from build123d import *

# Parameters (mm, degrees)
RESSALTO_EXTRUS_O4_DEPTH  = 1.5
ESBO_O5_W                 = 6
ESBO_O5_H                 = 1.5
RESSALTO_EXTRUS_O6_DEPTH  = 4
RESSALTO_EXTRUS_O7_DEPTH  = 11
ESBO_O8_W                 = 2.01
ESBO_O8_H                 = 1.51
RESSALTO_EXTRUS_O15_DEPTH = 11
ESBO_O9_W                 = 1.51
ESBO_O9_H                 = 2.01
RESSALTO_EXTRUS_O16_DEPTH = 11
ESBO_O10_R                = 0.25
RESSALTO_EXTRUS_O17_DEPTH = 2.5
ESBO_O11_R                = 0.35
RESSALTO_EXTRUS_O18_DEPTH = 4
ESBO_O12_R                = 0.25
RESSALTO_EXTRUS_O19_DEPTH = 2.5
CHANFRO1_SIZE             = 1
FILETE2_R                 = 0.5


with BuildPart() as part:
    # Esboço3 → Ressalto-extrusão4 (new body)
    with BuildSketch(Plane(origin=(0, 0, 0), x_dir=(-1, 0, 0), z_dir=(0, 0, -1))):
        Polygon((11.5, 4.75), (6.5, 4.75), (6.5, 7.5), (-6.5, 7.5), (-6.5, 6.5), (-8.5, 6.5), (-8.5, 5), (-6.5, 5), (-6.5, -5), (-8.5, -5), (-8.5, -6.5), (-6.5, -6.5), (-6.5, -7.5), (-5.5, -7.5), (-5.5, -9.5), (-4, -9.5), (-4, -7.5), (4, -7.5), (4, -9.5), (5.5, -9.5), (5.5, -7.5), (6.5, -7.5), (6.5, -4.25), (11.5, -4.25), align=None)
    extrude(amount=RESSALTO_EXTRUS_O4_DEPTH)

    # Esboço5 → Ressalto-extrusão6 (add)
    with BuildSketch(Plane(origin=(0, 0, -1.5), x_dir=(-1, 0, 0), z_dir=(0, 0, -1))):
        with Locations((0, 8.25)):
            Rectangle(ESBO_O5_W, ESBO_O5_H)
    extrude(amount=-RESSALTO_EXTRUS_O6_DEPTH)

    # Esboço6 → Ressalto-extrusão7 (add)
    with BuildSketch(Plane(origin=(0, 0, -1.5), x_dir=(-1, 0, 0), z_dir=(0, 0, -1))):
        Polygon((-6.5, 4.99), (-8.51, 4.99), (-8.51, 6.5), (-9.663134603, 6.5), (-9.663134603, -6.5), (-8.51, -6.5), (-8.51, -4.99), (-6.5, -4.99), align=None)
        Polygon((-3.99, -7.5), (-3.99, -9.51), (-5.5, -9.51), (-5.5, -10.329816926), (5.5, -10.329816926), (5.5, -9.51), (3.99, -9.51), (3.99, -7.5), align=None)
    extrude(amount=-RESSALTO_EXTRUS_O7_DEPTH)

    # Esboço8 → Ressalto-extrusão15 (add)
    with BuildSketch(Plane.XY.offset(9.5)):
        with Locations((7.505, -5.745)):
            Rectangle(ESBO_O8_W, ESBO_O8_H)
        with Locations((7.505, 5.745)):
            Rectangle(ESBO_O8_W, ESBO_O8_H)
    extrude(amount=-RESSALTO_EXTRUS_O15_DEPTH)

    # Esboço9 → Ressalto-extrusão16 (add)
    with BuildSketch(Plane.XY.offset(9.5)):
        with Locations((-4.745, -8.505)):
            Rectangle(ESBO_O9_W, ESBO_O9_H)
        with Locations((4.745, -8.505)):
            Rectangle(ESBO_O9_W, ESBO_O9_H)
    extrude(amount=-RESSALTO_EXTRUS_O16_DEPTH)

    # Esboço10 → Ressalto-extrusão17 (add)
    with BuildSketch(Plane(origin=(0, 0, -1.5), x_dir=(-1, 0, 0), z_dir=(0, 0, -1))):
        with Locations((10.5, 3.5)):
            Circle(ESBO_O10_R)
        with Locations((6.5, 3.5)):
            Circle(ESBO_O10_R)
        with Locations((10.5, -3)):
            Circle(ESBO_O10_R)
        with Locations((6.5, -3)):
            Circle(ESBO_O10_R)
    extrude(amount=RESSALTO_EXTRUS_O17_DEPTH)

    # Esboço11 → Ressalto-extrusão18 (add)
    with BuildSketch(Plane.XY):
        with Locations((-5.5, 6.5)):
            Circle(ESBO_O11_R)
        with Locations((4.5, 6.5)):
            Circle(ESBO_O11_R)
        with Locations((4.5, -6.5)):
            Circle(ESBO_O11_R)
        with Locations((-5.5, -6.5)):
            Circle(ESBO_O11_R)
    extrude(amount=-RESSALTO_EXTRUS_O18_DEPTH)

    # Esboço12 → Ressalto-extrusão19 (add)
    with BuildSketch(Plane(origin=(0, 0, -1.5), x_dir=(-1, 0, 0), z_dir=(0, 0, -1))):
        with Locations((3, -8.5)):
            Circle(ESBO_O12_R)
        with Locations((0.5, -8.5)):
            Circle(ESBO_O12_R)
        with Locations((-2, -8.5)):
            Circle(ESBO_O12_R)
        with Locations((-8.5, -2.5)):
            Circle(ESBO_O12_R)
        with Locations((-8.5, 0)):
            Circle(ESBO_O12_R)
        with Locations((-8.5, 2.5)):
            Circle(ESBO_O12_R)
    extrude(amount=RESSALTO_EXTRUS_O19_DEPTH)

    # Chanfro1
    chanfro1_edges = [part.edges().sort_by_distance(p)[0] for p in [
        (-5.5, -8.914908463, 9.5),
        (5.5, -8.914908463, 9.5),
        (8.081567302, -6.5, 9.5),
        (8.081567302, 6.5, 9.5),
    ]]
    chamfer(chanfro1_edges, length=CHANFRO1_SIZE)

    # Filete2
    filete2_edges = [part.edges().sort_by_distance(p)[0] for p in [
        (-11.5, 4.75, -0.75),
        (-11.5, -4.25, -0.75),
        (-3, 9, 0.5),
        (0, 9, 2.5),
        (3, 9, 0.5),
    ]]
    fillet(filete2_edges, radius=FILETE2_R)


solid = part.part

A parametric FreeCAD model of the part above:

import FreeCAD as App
import Part
import Sketcher
Q = App.Units.Quantity


def edges_at(feature, points):
    """Names of the edges that pass closest to the given points."""
    edges = feature.Shape.Edges
    near = lambda p: min(range(len(edges)), key=lambda i: edges[i].distToShape(Part.Vertex(*p))[0])
    return sorted({f"Edge{near(p) + 1}" for p in points})

doc = App.newDocument("Part")
body = doc.addObject("PartDesign::Body", "Body")

sketch1 = doc.addObject("Sketcher::SketchObject", "Sketch")
body.addObject(sketch1)
sketch1.AttachmentSupport = (doc.XY_Plane, [""])
sketch1.MapMode = "FlatFace"
sketch1.addGeometry([
    Part.LineSegment(App.Vector(-11.5, 4.8, 0), App.Vector(-6.5, 4.8, 0)),
    Part.LineSegment(App.Vector(-6.5, 4.8, 0), App.Vector(-6.5, 7.5, 0)),
    Part.LineSegment(App.Vector(-6.5, 7.5, 0), App.Vector(6.5, 7.5, 0)),
    Part.LineSegment(App.Vector(6.5, 7.5, 0), App.Vector(6.5, 6.5, 0)),
    Part.LineSegment(App.Vector(6.5, 6.5, 0), App.Vector(8.5, 6.5, 0)),
    Part.LineSegment(App.Vector(8.5, 6.5, 0), App.Vector(8.5, 5, 0)),
    Part.LineSegment(App.Vector(8.5, 5, 0), App.Vector(6.5, 5, 0)),
    Part.LineSegment(App.Vector(6.5, 5, 0), App.Vector(6.5, -5, 0)),
    Part.LineSegment(App.Vector(6.5, -5, 0), App.Vector(8.5, -5, 0)),
    Part.LineSegment(App.Vector(8.5, -5, 0), App.Vector(8.5, -6.5, 0)),
    Part.LineSegment(App.Vector(8.5, -6.5, 0), App.Vector(6.5, -6.5, 0)),
    Part.LineSegment(App.Vector(6.5, -6.5, 0), App.Vector(6.5, -7.5, 0)),
    Part.LineSegment(App.Vector(6.5, -7.5, 0), App.Vector(5.5, -7.5, 0)),
    Part.LineSegment(App.Vector(5.5, -7.5, 0), App.Vector(5.5, -9.5, 0)),
    Part.LineSegment(App.Vector(5.5, -9.5, 0), App.Vector(4, -9.5, 0)),
    Part.LineSegment(App.Vector(4, -9.5, 0), App.Vector(4, -7.5, 0)),
    Part.LineSegment(App.Vector(4, -7.5, 0), App.Vector(-4, -7.5, 0)),
    Part.LineSegment(App.Vector(-4, -7.5, 0), App.Vector(-4, -9.5, 0)),
    Part.LineSegment(App.Vector(-4, -9.5, 0), App.Vector(-5.5, -9.5, 0)),
    Part.LineSegment(App.Vector(-5.5, -9.5, 0), App.Vector(-5.5, -7.5, 0)),
    Part.LineSegment(App.Vector(-5.5, -7.5, 0), App.Vector(-6.5, -7.5, 0)),
    Part.LineSegment(App.Vector(-6.5, -7.5, 0), App.Vector(-6.5, -4.2, 0)),
    Part.LineSegment(App.Vector(-6.5, -4.2, 0), App.Vector(-11.5, -4.2, 0)),
    Part.LineSegment(App.Vector(-11.5, -4.2, 0), App.Vector(-11.5, 4.8, 0)),
], False)
sketch1.addConstraint([
    Sketcher.Constraint("Coincident", 0, 2, 1, 1),
    Sketcher.Constraint("Coincident", 1, 2, 2, 1),
    Sketcher.Constraint("Coincident", 2, 2, 3, 1),
    Sketcher.Constraint("Coincident", 3, 2, 4, 1),
    Sketcher.Constraint("Coincident", 4, 2, 5, 1),
    Sketcher.Constraint("Coincident", 5, 2, 6, 1),
    Sketcher.Constraint("Coincident", 6, 2, 7, 1),
    Sketcher.Constraint("Coincident", 7, 2, 8, 1),
    Sketcher.Constraint("Coincident", 8, 2, 9, 1),
    Sketcher.Constraint("Coincident", 9, 2, 10, 1),
    Sketcher.Constraint("Coincident", 10, 2, 11, 1),
    Sketcher.Constraint("Coincident", 11, 2, 12, 1),
    Sketcher.Constraint("Coincident", 12, 2, 13, 1),
    Sketcher.Constraint("Coincident", 13, 2, 14, 1),
    Sketcher.Constraint("Coincident", 14, 2, 15, 1),
    Sketcher.Constraint("Coincident", 15, 2, 16, 1),
    Sketcher.Constraint("Coincident", 16, 2, 17, 1),
    Sketcher.Constraint("Coincident", 17, 2, 18, 1),
    Sketcher.Constraint("Coincident", 18, 2, 19, 1),
    Sketcher.Constraint("Coincident", 19, 2, 20, 1),
    Sketcher.Constraint("Coincident", 20, 2, 21, 1),
    Sketcher.Constraint("Coincident", 21, 2, 22, 1),
    Sketcher.Constraint("Coincident", 22, 2, 23, 1),
    Sketcher.Constraint("Coincident", 23, 2, 0, 1),
    Sketcher.Constraint("Horizontal", 0),
    Sketcher.Constraint("Vertical", 1),
    Sketcher.Constraint("Horizontal", 2),
    Sketcher.Constraint("Vertical", 3),
    Sketcher.Constraint("Horizontal", 4),
    Sketcher.Constraint("Vertical", 5),
    Sketcher.Constraint("Horizontal", 6),
    Sketcher.Constraint("Vertical", 7),
    Sketcher.Constraint("Horizontal", 8),
    Sketcher.Constraint("Vertical", 9),
    Sketcher.Constraint("Horizontal", 10),
    Sketcher.Constraint("Vertical", 11),
    Sketcher.Constraint("Horizontal", 12),
    Sketcher.Constraint("Vertical", 13),
    Sketcher.Constraint("Horizontal", 14),
    Sketcher.Constraint("Vertical", 15),
    Sketcher.Constraint("Horizontal", 16),
    Sketcher.Constraint("Vertical", 17),
    Sketcher.Constraint("Horizontal", 18),
    Sketcher.Constraint("Vertical", 19),
    Sketcher.Constraint("Horizontal", 20),
    Sketcher.Constraint("Vertical", 21),
    Sketcher.Constraint("Horizontal", 22),
    Sketcher.Constraint("Vertical", 23),
    Sketcher.Constraint("Symmetric", 1, 2, 11, 2, -1, 1),
    Sketcher.Constraint("Symmetric", 2, 2, 20, 2, -1, 1),
    Sketcher.Constraint("Symmetric", 14, 2, 17, 2, -2),
    Sketcher.Constraint("Symmetric", 5, 2, 8, 2, -1),
    Sketcher.Constraint("Symmetric", 3, 2, 10, 2, -1),
    Sketcher.Constraint("Horizontal", 12, 2, 15, 2),
    Sketcher.Constraint("Vertical", 3, 2, 6, 2),
    Sketcher.Constraint("Equal", 14, 18),
    Sketcher.Constraint("Equal", 20, 3),
    Sketcher.Constraint("Equal", 18, 5),
    Sketcher.Constraint("Equal", 10, 13),
    Sketcher.Constraint("DistanceX", 0, 1, 0, 2, Q("5 mm")),
    Sketcher.Constraint("DistanceX", 2, 1, 2, 2, Q("13 mm")),
    Sketcher.Constraint("DistanceX", 4, 1, 4, 2, Q("2 mm")),
    Sketcher.Constraint("DistanceX", 12, 2, 12, 1, Q("1 mm")),
    Sketcher.Constraint("DistanceX", 16, 2, 16, 1, Q("8 mm")),
    Sketcher.Constraint("DistanceY", 7, 2, 7, 1, Q("10 mm")),
    Sketcher.Constraint("DistanceY", 23, 1, 23, 2, Q("9 mm")),
    Sketcher.Constraint("DistanceY", 1, 1, 1, 2, Q("2.75 mm")),
])
pad1 = doc.addObject("PartDesign::Pad", "Pad")
body.addObject(pad1)
pad1.Profile = sketch1
pad1.Length = 1.5
pad1.Reversed = True

sketch2 = doc.addObject("Sketcher::SketchObject", "Sketch001")
body.addObject(sketch2)
sketch2.AttachmentSupport = (doc.XY_Plane, [""])
sketch2.MapMode = "FlatFace"
sketch2.AttachmentOffset = App.Placement(App.Vector(0, 0, -1.5), App.Rotation())
sketch2.addGeometry([
    Part.LineSegment(App.Vector(3, 9, 0), App.Vector(3, 7.5, 0)),
    Part.LineSegment(App.Vector(3, 7.5, 0), App.Vector(-3, 7.5, 0)),
    Part.LineSegment(App.Vector(-3, 7.5, 0), App.Vector(-3, 9, 0)),
    Part.LineSegment(App.Vector(-3, 9, 0), App.Vector(3, 9, 0)),
], False)
sketch2.addConstraint([
    Sketcher.Constraint("Coincident", 0, 2, 1, 1),
    Sketcher.Constraint("Coincident", 1, 2, 2, 1),
    Sketcher.Constraint("Coincident", 2, 2, 3, 1),
    Sketcher.Constraint("Coincident", 3, 2, 0, 1),
    Sketcher.Constraint("Vertical", 0),
    Sketcher.Constraint("Horizontal", 1),
    Sketcher.Constraint("Vertical", 2),
    Sketcher.Constraint("Horizontal", 3),
    Sketcher.Constraint("DistanceX", 1, 2, 1, 1, Q("6 mm")),
    Sketcher.Constraint("DistanceY", 0, 2, 0, 1, Q("1.5 mm")),
    Sketcher.Constraint("DistanceX", -1, 1, 0, 2, Q("3 mm")),
    Sketcher.Constraint("DistanceY", -1, 1, 2, 2, Q("9 mm")),
])
pad2 = doc.addObject("PartDesign::Pad", "Pad001")
body.addObject(pad2)
pad2.Profile = sketch2
pad2.Length = 4

sketch3 = doc.addObject("Sketcher::SketchObject", "Sketch002")
body.addObject(sketch3)
sketch3.AttachmentSupport = (doc.XY_Plane, [""])
sketch3.MapMode = "FlatFace"
sketch3.AttachmentOffset = App.Placement(App.Vector(0, 0, -1.5), App.Rotation())
sketch3.addGeometry([
    Part.LineSegment(App.Vector(6.5, 5, 0), App.Vector(8.5, 5, 0)),
    Part.LineSegment(App.Vector(8.5, 5, 0), App.Vector(8.5, 6.5, 0)),
    Part.LineSegment(App.Vector(8.5, 6.5, 0), App.Vector(9.7, 6.5, 0)),
    Part.LineSegment(App.Vector(9.7, 6.5, 0), App.Vector(9.7, -6.5, 0)),
    Part.LineSegment(App.Vector(9.7, -6.5, 0), App.Vector(8.5, -6.5, 0)),
    Part.LineSegment(App.Vector(8.5, -6.5, 0), App.Vector(8.5, -5, 0)),
    Part.LineSegment(App.Vector(8.5, -5, 0), App.Vector(6.5, -5, 0)),
    Part.LineSegment(App.Vector(6.5, -5, 0), App.Vector(6.5, 5, 0)),
    Part.LineSegment(App.Vector(4, -7.5, 0), App.Vector(4, -9.5, 0)),
    Part.LineSegment(App.Vector(4, -9.5, 0), App.Vector(5.5, -9.5, 0)),
    Part.LineSegment(App.Vector(5.5, -9.5, 0), App.Vector(5.5, -10.3, 0)),
    Part.LineSegment(App.Vector(5.5, -10.3, 0), App.Vector(-5.5, -10.3, 0)),
    Part.LineSegment(App.Vector(-5.5, -10.3, 0), App.Vector(-5.5, -9.5, 0)),
    Part.LineSegment(App.Vector(-5.5, -9.5, 0), App.Vector(-4, -9.5, 0)),
    Part.LineSegment(App.Vector(-4, -9.5, 0), App.Vector(-4, -7.5, 0)),
    Part.LineSegment(App.Vector(-4, -7.5, 0), App.Vector(4, -7.5, 0)),
], False)
sketch3.addConstraint([
    Sketcher.Constraint("Coincident", 0, 2, 1, 1),
    Sketcher.Constraint("Coincident", 1, 2, 2, 1),
    Sketcher.Constraint("Coincident", 2, 2, 3, 1),
    Sketcher.Constraint("Coincident", 3, 2, 4, 1),
    Sketcher.Constraint("Coincident", 4, 2, 5, 1),
    Sketcher.Constraint("Coincident", 5, 2, 6, 1),
    Sketcher.Constraint("Coincident", 6, 2, 7, 1),
    Sketcher.Constraint("Coincident", 7, 2, 0, 1),
    Sketcher.Constraint("Coincident", 8, 2, 9, 1),
    Sketcher.Constraint("Coincident", 9, 2, 10, 1),
    Sketcher.Constraint("Coincident", 10, 2, 11, 1),
    Sketcher.Constraint("Coincident", 11, 2, 12, 1),
    Sketcher.Constraint("Coincident", 12, 2, 13, 1),
    Sketcher.Constraint("Coincident", 13, 2, 14, 1),
    Sketcher.Constraint("Coincident", 14, 2, 15, 1),
    Sketcher.Constraint("Coincident", 15, 2, 8, 1),
    Sketcher.Constraint("Horizontal", 0),
    Sketcher.Constraint("Vertical", 1),
    Sketcher.Constraint("Horizontal", 2),
    Sketcher.Constraint("Vertical", 3),
    Sketcher.Constraint("Horizontal", 4),
    Sketcher.Constraint("Vertical", 5),
    Sketcher.Constraint("Horizontal", 6),
    Sketcher.Constraint("Vertical", 7),
    Sketcher.Constraint("Vertical", 8),
    Sketcher.Constraint("Horizontal", 9),
    Sketcher.Constraint("Vertical", 10),
    Sketcher.Constraint("Horizontal", 11),
    Sketcher.Constraint("Vertical", 12),
    Sketcher.Constraint("Horizontal", 13),
    Sketcher.Constraint("Vertical", 14),
    Sketcher.Constraint("Horizontal", 15),
    Sketcher.Constraint("Symmetric", 9, 2, 12, 2, -2),
    Sketcher.Constraint("Symmetric", 1, 2, 4, 2, -1),
    Sketcher.Constraint("Equal", 9, 13),
    Sketcher.Constraint("Equal", 13, 1),
    Sketcher.Constraint("Equal", 1, 5),
    Sketcher.Constraint("Equal", 6, 8),
    Sketcher.Constraint("DistanceX", 11, 2, 11, 1, Q("11 mm")),
    Sketcher.Constraint("DistanceY", 3, 2, 3, 1, Q("13 mm")),
    Sketcher.Constraint("DistanceX", 9, 2, 6, 2, Q("1 mm")),
    Sketcher.Constraint("DistanceY", 15, 2, 4, 2, Q("1 mm")),
    Sketcher.Constraint("DistanceX", 0, 1, 0, 2, Q("2.01 mm")),
    Sketcher.Constraint("DistanceX", 9, 1, 9, 2, Q("1.51 mm")),
    Sketcher.Constraint("DistanceX", 2, 1, 2, 2, Q("1.153135 mm")),
    Sketcher.Constraint("DistanceY", 10, 2, 10, 1, Q("0.819817 mm")),
])
pad3 = doc.addObject("PartDesign::Pad", "Pad002")
body.addObject(pad3)
pad3.Profile = sketch3
pad3.Length = 11

sketch4 = doc.addObject("Sketcher::SketchObject", "Sketch003")
body.addObject(sketch4)
sketch4.AttachmentSupport = (doc.XY_Plane, [""])
sketch4.MapMode = "FlatFace"
sketch4.AttachmentOffset = App.Placement(App.Vector(0, 0, 9.5), App.Rotation())
sketch4.addGeometry([
    Part.LineSegment(App.Vector(6.5, -5, 0), App.Vector(6.5, -6.5, 0)),
    Part.LineSegment(App.Vector(6.5, -6.5, 0), App.Vector(8.5, -6.5, 0)),
    Part.LineSegment(App.Vector(8.5, -6.5, 0), App.Vector(8.5, -5, 0)),
    Part.LineSegment(App.Vector(8.5, -5, 0), App.Vector(6.5, -5, 0)),
    Part.LineSegment(App.Vector(6.5, 6.5, 0), App.Vector(6.5, 5, 0)),
    Part.LineSegment(App.Vector(6.5, 5, 0), App.Vector(8.5, 5, 0)),
    Part.LineSegment(App.Vector(8.5, 5, 0), App.Vector(8.5, 6.5, 0)),
    Part.LineSegment(App.Vector(8.5, 6.5, 0), App.Vector(6.5, 6.5, 0)),
], False)
sketch4.addConstraint([
    Sketcher.Constraint("Coincident", 0, 2, 1, 1),
    Sketcher.Constraint("Coincident", 1, 2, 2, 1),
    Sketcher.Constraint("Coincident", 2, 2, 3, 1),
    Sketcher.Constraint("Coincident", 3, 2, 0, 1),
    Sketcher.Constraint("Coincident", 4, 2, 5, 1),
    Sketcher.Constraint("Coincident", 5, 2, 6, 1),
    Sketcher.Constraint("Coincident", 6, 2, 7, 1),
    Sketcher.Constraint("Coincident", 7, 2, 4, 1),
    Sketcher.Constraint("Vertical", 0),
    Sketcher.Constraint("Horizontal", 1),
    Sketcher.Constraint("Vertical", 2),
    Sketcher.Constraint("Horizontal", 3),
    Sketcher.Constraint("Vertical", 4),
    Sketcher.Constraint("Horizontal", 5),
    Sketcher.Constraint("Vertical", 6),
    Sketcher.Constraint("Horizontal", 7),
    Sketcher.Constraint("Symmetric", 3, 2, 4, 2, -1),
    Sketcher.Constraint("Symmetric", 1, 2, 6, 2, -1),
    Sketcher.Constraint("DistanceY", 1, 2, 6, 2, Q("13 mm")),
    Sketcher.Constraint("DistanceX", 1, 1, 1, 2, Q("2.01 mm")),
    Sketcher.Constraint("DistanceY", 0, 2, 0, 1, Q("1.51 mm")),
    Sketcher.Constraint("DistanceX", -1, 1, 0, 2, Q("6.5 mm")),
])
pad4 = doc.addObject("PartDesign::Pad", "Pad003")
body.addObject(pad4)
pad4.Profile = sketch4
pad4.Length = 11
pad4.Reversed = True

sketch5 = doc.addObject("Sketcher::SketchObject", "Sketch004")
body.addObject(sketch5)
sketch5.AttachmentSupport = (doc.XY_Plane, [""])
sketch5.MapMode = "FlatFace"
sketch5.AttachmentOffset = App.Placement(App.Vector(0, 0, 9.5), App.Rotation())
sketch5.addGeometry([
    Part.LineSegment(App.Vector(-5.5, -7.5, 0), App.Vector(-5.5, -9.5, 0)),
    Part.LineSegment(App.Vector(-5.5, -9.5, 0), App.Vector(-4, -9.5, 0)),
    Part.LineSegment(App.Vector(-4, -9.5, 0), App.Vector(-4, -7.5, 0)),
    Part.LineSegment(App.Vector(-4, -7.5, 0), App.Vector(-5.5, -7.5, 0)),
    Part.LineSegment(App.Vector(4, -7.5, 0), App.Vector(4, -9.5, 0)),
    Part.LineSegment(App.Vector(4, -9.5, 0), App.Vector(5.5, -9.5, 0)),
    Part.LineSegment(App.Vector(5.5, -9.5, 0), App.Vector(5.5, -7.5, 0)),
    Part.LineSegment(App.Vector(5.5, -7.5, 0), App.Vector(4, -7.5, 0)),
], False)
sketch5.addConstraint([
    Sketcher.Constraint("Coincident", 0, 2, 1, 1),
    Sketcher.Constraint("Coincident", 1, 2, 2, 1),
    Sketcher.Constraint("Coincident", 2, 2, 3, 1),
    Sketcher.Constraint("Coincident", 3, 2, 0, 1),
    Sketcher.Constraint("Coincident", 4, 2, 5, 1),
    Sketcher.Constraint("Coincident", 5, 2, 6, 1),
    Sketcher.Constraint("Coincident", 6, 2, 7, 1),
    Sketcher.Constraint("Coincident", 7, 2, 4, 1),
    Sketcher.Constraint("Vertical", 0),
    Sketcher.Constraint("Horizontal", 1),
    Sketcher.Constraint("Vertical", 2),
    Sketcher.Constraint("Horizontal", 3),
    Sketcher.Constraint("Vertical", 4),
    Sketcher.Constraint("Horizontal", 5),
    Sketcher.Constraint("Vertical", 6),
    Sketcher.Constraint("Horizontal", 7),
    Sketcher.Constraint("Symmetric", 1, 2, 4, 2, -2),
    Sketcher.Constraint("Symmetric", 3, 2, 6, 2, -2),
    Sketcher.Constraint("DistanceX", 0, 2, 5, 2, Q("11 mm")),
    Sketcher.Constraint("DistanceX", 1, 1, 1, 2, Q("1.51 mm")),
    Sketcher.Constraint("DistanceY", 0, 2, 0, 1, Q("2.01 mm")),
    Sketcher.Constraint("DistanceY", 2, 2, -1, 1, Q("7.5 mm")),
])
pad5 = doc.addObject("PartDesign::Pad", "Pad004")
body.addObject(pad5)
pad5.Profile = sketch5
pad5.Length = 11
pad5.Reversed = True

sketch6 = doc.addObject("Sketcher::SketchObject", "Sketch005")
body.addObject(sketch6)
sketch6.AttachmentSupport = (doc.XY_Plane, [""])
sketch6.MapMode = "FlatFace"
sketch6.AttachmentOffset = App.Placement(App.Vector(0, 0, -1.5), App.Rotation())
sketch6.addGeometry([
    Part.Circle(App.Vector(-10.5, 3.5, 0), App.Vector(0, 0, 1), 0.25),
    Part.Circle(App.Vector(-6.5, 3.5, 0), App.Vector(0, 0, 1), 0.25),
    Part.Circle(App.Vector(-10.5, -3, 0), App.Vector(0, 0, 1), 0.25),
    Part.Circle(App.Vector(-6.5, -3, 0), App.Vector(0, 0, 1), 0.25),
], False)
sketch6.addConstraint([
    Sketcher.Constraint("Equal", 0, 1),
    Sketcher.Constraint("Equal", 1, 2),
    Sketcher.Constraint("Equal", 2, 3),
    Sketcher.Constraint("Horizontal", 0, 3, 1, 3),
    Sketcher.Constraint("Horizontal", 2, 3, 3, 3),
    Sketcher.Constraint("Vertical", 0, 3, 2, 3),
    Sketcher.Constraint("Vertical", 1, 3, 3, 3),
    Sketcher.Constraint("Diameter", 0, Q("0.5 mm")),
    Sketcher.Constraint("DistanceY", 2, 3, -1, 1, Q("3 mm")),
    Sketcher.Constraint("DistanceX", 0, 3, 1, 3, Q("4 mm")),
    Sketcher.Constraint("DistanceX", 0, 3, -1, 1, Q("10.5 mm")),
    Sketcher.Constraint("DistanceY", -1, 1, 0, 3, Q("3.5 mm")),
])
pad6 = doc.addObject("PartDesign::Pad", "Pad005")
body.addObject(pad6)
pad6.Profile = sketch6
pad6.Length = 2.5
pad6.Reversed = True

sketch7 = doc.addObject("Sketcher::SketchObject", "Sketch006")
body.addObject(sketch7)
sketch7.AttachmentSupport = (doc.XY_Plane, [""])
sketch7.MapMode = "FlatFace"
sketch7.addGeometry([
    Part.Circle(App.Vector(-5.5, 6.5, 0), App.Vector(0, 0, 1), 0.35),
    Part.Circle(App.Vector(4.5, 6.5, 0), App.Vector(0, 0, 1), 0.35),
    Part.Circle(App.Vector(4.5, -6.5, 0), App.Vector(0, 0, 1), 0.35),
    Part.Circle(App.Vector(-5.5, -6.5, 0), App.Vector(0, 0, 1), 0.35),
], False)
sketch7.addConstraint([
    Sketcher.Constraint("Equal", 0, 1),
    Sketcher.Constraint("Equal", 1, 2),
    Sketcher.Constraint("Equal", 2, 3),
    Sketcher.Constraint("Symmetric", 1, 3, 2, 3, -1),
    Sketcher.Constraint("Symmetric", 0, 3, 3, 3, -1),
    Sketcher.Constraint("Horizontal", 0, 3, 1, 3),
    Sketcher.Constraint("Diameter", 0, Q("0.7 mm")),
    Sketcher.Constraint("DistanceX", 0, 3, 1, 3, Q("10 mm")),
    Sketcher.Constraint("DistanceY", 2, 3, 1, 3, Q("13 mm")),
    Sketcher.Constraint("DistanceX", 0, 3, -1, 1, Q("5.5 mm")),
])
pad7 = doc.addObject("PartDesign::Pad", "Pad006")
body.addObject(pad7)
pad7.Profile = sketch7
pad7.Length = 4
pad7.Reversed = True

sketch8 = doc.addObject("Sketcher::SketchObject", "Sketch007")
body.addObject(sketch8)
sketch8.AttachmentSupport = (doc.XY_Plane, [""])
sketch8.MapMode = "FlatFace"
sketch8.AttachmentOffset = App.Placement(App.Vector(0, 0, -1.5), App.Rotation())
sketch8.addGeometry([
    Part.Circle(App.Vector(-3, -8.5, 0), App.Vector(0, 0, 1), 0.25),
    Part.Circle(App.Vector(-0.5, -8.5, 0), App.Vector(0, 0, 1), 0.25),
    Part.Circle(App.Vector(2, -8.5, 0), App.Vector(0, 0, 1), 0.25),
    Part.Circle(App.Vector(8.5, -2.5, 0), App.Vector(0, 0, 1), 0.25),
    Part.Circle(App.Vector(8.5, 0, 0), App.Vector(0, 0, 1), 0.25),
    Part.Circle(App.Vector(8.5, 2.5, 0), App.Vector(0, 0, 1), 0.25),
], False)
sketch8.addConstraint([
    Sketcher.Constraint("Equal", 0, 1),
    Sketcher.Constraint("Equal", 1, 2),
    Sketcher.Constraint("Equal", 2, 3),
    Sketcher.Constraint("Equal", 3, 4),
    Sketcher.Constraint("Equal", 4, 5),
    Sketcher.Constraint("Symmetric", 3, 3, 5, 3, -1),
    Sketcher.Constraint("PointOnObject", 4, 3, -1),
    Sketcher.Constraint("Horizontal", 0, 3, 1, 3),
    Sketcher.Constraint("Horizontal", 1, 3, 2, 3),
    Sketcher.Constraint("Vertical", 3, 3, 4, 3),
    Sketcher.Constraint("Diameter", 0, Q("0.5 mm")),
    Sketcher.Constraint("DistanceX", 0, 3, -1, 1, Q("3 mm")),
    Sketcher.Constraint("DistanceX", -1, 1, 2, 3, Q("2 mm")),
    Sketcher.Constraint("DistanceY", 2, 3, 3, 3, Q("6 mm")),
    Sketcher.Constraint("DistanceX", 1, 3, 3, 3, Q("9 mm")),
    Sketcher.Constraint("DistanceY", 3, 3, 5, 3, Q("5 mm")),
    Sketcher.Constraint("DistanceX", 1, 3, -1, 1, Q("0.5 mm")),
])
pad8 = doc.addObject("PartDesign::Pad", "Pad007")
body.addObject(pad8)
pad8.Profile = sketch8
pad8.Length = 2.5
pad8.Reversed = True
doc.recompute()

chamfer = doc.addObject("PartDesign::Chamfer", "Chamfer")
body.addObject(chamfer)
chamfer.Base = (pad8, edges_at(pad8, [
    (-5.5, -8.915, 9.5),
    (5.5, -8.915, 9.5),
    (8.082, -6.5, 9.5),
    (8.082, 6.5, 9.5),
]))
chamfer.Size = 1
doc.recompute()

fillet = doc.addObject("PartDesign::Fillet", "Fillet")
body.addObject(fillet)
fillet.Base = (chamfer, edges_at(chamfer, [
    (-11.5, 4.75, -0.75),
    (-11.5, -4.25, -0.75),
    (-3, 9, 0.5),
    (0, 9, 2.5),
    (3, 9, 0.5),
]))
fillet.Radius = 0.5

doc.recompute()
